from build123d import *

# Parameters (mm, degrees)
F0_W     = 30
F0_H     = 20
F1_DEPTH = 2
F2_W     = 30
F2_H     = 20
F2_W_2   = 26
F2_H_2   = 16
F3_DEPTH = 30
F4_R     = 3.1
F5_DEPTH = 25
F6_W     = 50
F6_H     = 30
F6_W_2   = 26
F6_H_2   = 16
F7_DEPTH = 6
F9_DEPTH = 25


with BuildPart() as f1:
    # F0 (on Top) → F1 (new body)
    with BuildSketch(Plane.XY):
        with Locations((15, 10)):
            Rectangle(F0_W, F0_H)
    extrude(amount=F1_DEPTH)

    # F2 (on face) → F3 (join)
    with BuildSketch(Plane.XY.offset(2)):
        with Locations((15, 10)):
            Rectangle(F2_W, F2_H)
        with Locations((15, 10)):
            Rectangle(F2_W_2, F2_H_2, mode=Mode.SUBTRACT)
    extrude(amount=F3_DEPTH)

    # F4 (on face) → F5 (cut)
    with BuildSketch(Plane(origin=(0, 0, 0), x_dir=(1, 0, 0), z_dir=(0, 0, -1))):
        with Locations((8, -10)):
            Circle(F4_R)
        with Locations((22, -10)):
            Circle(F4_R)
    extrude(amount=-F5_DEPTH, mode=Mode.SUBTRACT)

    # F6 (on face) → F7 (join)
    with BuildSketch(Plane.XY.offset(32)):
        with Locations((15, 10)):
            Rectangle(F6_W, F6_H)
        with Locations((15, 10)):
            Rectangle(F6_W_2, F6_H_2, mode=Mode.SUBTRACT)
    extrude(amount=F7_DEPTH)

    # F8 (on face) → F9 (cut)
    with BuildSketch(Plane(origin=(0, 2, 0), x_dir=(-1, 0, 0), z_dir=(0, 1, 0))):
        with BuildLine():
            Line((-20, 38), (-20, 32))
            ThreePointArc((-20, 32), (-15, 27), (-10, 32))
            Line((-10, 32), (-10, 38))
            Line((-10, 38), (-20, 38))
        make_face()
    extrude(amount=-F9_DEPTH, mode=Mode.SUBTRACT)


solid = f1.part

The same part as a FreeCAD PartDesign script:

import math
import FreeCAD as App
import Part
import Sketcher
from FreeCAD import Vector
Q = App.Units.Quantity

doc = App.newDocument("Part")
body = doc.addObject("PartDesign::Body", "Body")

# Sketch on XY plane
sketch1 = doc.addObject("Sketcher::SketchObject", "Sketch")
body.addObject(sketch1)
sketch1.AttachmentSupport = (doc.XY_Plane, [""])
sketch1.MapMode = "FlatFace"
sketch1.addGeometry([
    Part.LineSegment(Vector(0, 20, 0), Vector(0, 0, 0)),
    Part.LineSegment(Vector(0, 0, 0), Vector(30, 0, 0)),
    Part.LineSegment(Vector(30, 0, 0), Vector(30, 20, 0)),
    Part.LineSegment(Vector(30, 20, 0), Vector(0, 20, 0)),
], False)
sketch1.addConstraint([
    Sketcher.Constraint("Coincident", 0, 2, 1, 1),
    Sketcher.Constraint("Coincident", 1, 2, 2, 1),
    Sketcher.Constraint("Coincident", 2, 2, 3, 1),
    Sketcher.Constraint("Coincident", 3, 2, 0, 1),
    Sketcher.Constraint("Vertical", 0),
    Sketcher.Constraint("Horizontal", 1),
    Sketcher.Constraint("Vertical", 2),
    Sketcher.Constraint("Horizontal", 3),
    Sketcher.Constraint("Coincident", 0, 2, -1, 1),
    Sketcher.Constraint("DistanceX", 1, 1, 1, 2, Q("30 mm")),
    Sketcher.Constraint("DistanceY", 0, 2, 0, 1, Q("20 mm")),
])
pad1 = doc.addObject("PartDesign::Pad", "Pad")
body.addObject(pad1)
pad1.Profile = sketch1
pad1.Length = 2

# Sketch on XY plane
sketch2 = doc.addObject("Sketcher::SketchObject", "Sketch001")
body.addObject(sketch2)
sketch2.AttachmentSupport = (doc.XY_Plane, [""])
sketch2.MapMode = "FlatFace"
sketch2.AttachmentOffset = App.Placement(Vector(0, 0, 2), App.Rotation())
sketch2.addGeometry([
    Part.LineSegment(Vector(0, 20, 0), Vector(0, 0, 0)),  # 0
    Part.LineSegment(Vector(0, 0, 0), Vector(30, 0, 0)),  # 1
    Part.LineSegment(Vector(30, 0, 0), Vector(30, 20, 0)),  # 2
    Part.LineSegment(Vector(30, 20, 0), Vector(0, 20, 0)),  # 3
    Part.LineSegment(Vector(28, 2, 0), Vector(2, 2, 0)),  # 4
    Part.LineSegment(Vector(2, 2, 0), Vector(2, 18, 0)),  # 5
    Part.LineSegment(Vector(2, 18, 0), Vector(28, 18, 0)),  # 6
    Part.LineSegment(Vector(28, 18, 0), Vector(28, 2, 0)),  # 7
], False)
sketch2.addConstraint([
    Sketcher.Constraint("Coincident", 0, 2, 1, 1),
    Sketcher.Constraint("Coincident", 1, 2, 2, 1),
    Sketcher.Constraint("Coincident", 2, 2, 3, 1),
    Sketcher.Constraint("Coincident", 3, 2, 0, 1),
    Sketcher.Constraint("Coincident", 4, 2, 5, 1),
    Sketcher.Constraint("Coincident", 5, 2, 6, 1),
    Sketcher.Constraint("Coincident", 6, 2, 7, 1),
    Sketcher.Constraint("Coincident", 7, 2, 4, 1),
    Sketcher.Constraint("Vertical", 0),
    Sketcher.Constraint("Horizontal", 1),
    Sketcher.Constraint("Vertical", 2),
    Sketcher.Constraint("Horizontal", 3),
    Sketcher.Constraint("Horizontal", 4),
    Sketcher.Constraint("Vertical", 5),
    Sketcher.Constraint("Horizontal", 6),
    Sketcher.Constraint("Vertical", 7),
    Sketcher.Constraint("Coincident", 0, 2, -1, 1),
    Sketcher.Constraint("DistanceX", 1, 1, 1, 2, Q("30 mm")),
    Sketcher.Constraint("DistanceX", 4, 2, 4, 1, Q("26 mm")),
    Sketcher.Constraint("DistanceY", 0, 2, 0, 1, Q("20 mm")),
    Sketcher.Constraint("DistanceY", 5, 1, 5, 2, Q("16 mm")),
    Sketcher.Constraint("DistanceX", -1, 1, 4, 2, Q("2 mm")),
    Sketcher.Constraint("DistanceY", -1, 1, 4, 2, Q("2 mm")),
])
pad2 = doc.addObject("PartDesign::Pad", "Pad001")
body.addObject(pad2)
pad2.Profile = sketch2
pad2.Length = 30

# Sketch on XY plane
sketch3 = doc.addObject("Sketcher::SketchObject", "Sketch002")
body.addObject(sketch3)
sketch3.AttachmentSupport = (doc.XY_Plane, [""])
sketch3.MapMode = "FlatFace"
sketch3.addGeometry([
    Part.Circle(Vector(8, 10, 0), Vector(0, 0, 1), 3.1),
    Part.Circle(Vector(22, 10, 0), Vector(0, 0, 1), 3.1),
], False)
sketch3.addConstraint([
    Sketcher.Constraint("Equal", 0, 1),
    Sketcher.Constraint("Horizontal", 0, 3, 1, 3),
    Sketcher.Constraint("Diameter", 0, Q("6.2 mm")),
    Sketcher.Constraint("DistanceX", -1, 1, 0, 3, Q("8 mm")),
    Sketcher.Constraint("DistanceY", -1, 1, 0, 3, Q("10 mm")),
    Sketcher.Constraint("DistanceX", -1, 1, 1, 3, Q("22 mm")),
])
pocket1 = doc.addObject("PartDesign::Pocket", "Pocket")
body.addObject(pocket1)
pocket1.Profile = sketch3
pocket1.Length = 25
pocket1.Reversed = True

# Sketch on XY plane
sketch4 = doc.addObject("Sketcher::SketchObject", "Sketch003")
body.addObject(sketch4)
sketch4.AttachmentSupport = (doc.XY_Plane, [""])
sketch4.MapMode = "FlatFace"
sketch4.AttachmentOffset = App.Placement(Vector(0, 0, 32), App.Rotation())
sketch4.addGeometry([
    Part.LineSegment(Vector(-10, 25, 0), Vector(-10, -5, 0)),  # 0
    Part.LineSegment(Vector(-10, -5, 0), Vector(40, -5, 0)),  # 1
    Part.LineSegment(Vector(40, -5, 0), Vector(40, 25, 0)),  # 2
    Part.LineSegment(Vector(40, 25, 0), Vector(-10, 25, 0)),  # 3
    Part.LineSegment(Vector(28, 2, 0), Vector(2, 2, 0)),  # 4
    Part.LineSegment(Vector(2, 2, 0), Vector(2, 18, 0)),  # 5
    Part.LineSegment(Vector(2, 18, 0), Vector(28, 18, 0)),  # 6
    Part.LineSegment(Vector(28, 18, 0), Vector(28, 2, 0)),  # 7
], False)
sketch4.addConstraint([
    Sketcher.Constraint("Coincident", 0, 2, 1, 1),
    Sketcher.Constraint("Coincident", 1, 2, 2, 1),
    Sketcher.Constraint("Coincident", 2, 2, 3, 1),
    Sketcher.Constraint("Coincident", 3, 2, 0, 1),
    Sketcher.Constraint("Coincident", 4, 2, 5, 1),
    Sketcher.Constraint("Coincident", 5, 2, 6, 1),
    Sketcher.Constraint("Coincident", 6, 2, 7, 1),
    Sketcher.Constraint("Coincident", 7, 2, 4, 1),
    Sketcher.Constraint("Vertical", 0),
    Sketcher.Constraint("Horizontal", 1),
    Sketcher.Constraint("Vertical", 2),
    Sketcher.Constraint("Horizontal", 3),
    Sketcher.Constraint("Horizontal", 4),
    Sketcher.Constraint("Vertical", 5),
    Sketcher.Constraint("Horizontal", 6),
    Sketcher.Constraint("Vertical", 7),
    Sketcher.Constraint("DistanceX", 1, 1, 1, 2, Q("50 mm")),
    Sketcher.Constraint("DistanceX", 4, 2, 4, 1, Q("26 mm")),
    Sketcher.Constraint("DistanceY", 0, 2, 0, 1, Q("30 mm")),
    Sketcher.Constraint("DistanceY", 5, 1, 5, 2, Q("16 mm")),
    Sketcher.Constraint("DistanceX", 0, 2, -1, 1, Q("10 mm")),
    Sketcher.Constraint("DistanceY", 0, 2, -1, 1, Q("5 mm")),
    Sketcher.Constraint("DistanceX", -1, 1, 4, 2, Q("2 mm")),
    Sketcher.Constraint("DistanceY", -1, 1, 4, 2, Q("2 mm")),
])
pad3 = doc.addObject("PartDesign::Pad", "Pad002")
body.addObject(pad3)
pad3.Profile = sketch4
pad3.Length = 6

# Sketch on XZ plane
sketch5 = doc.addObject("Sketcher::SketchObject", "Sketch004")
body.addObject(sketch5)
sketch5.AttachmentSupport = (doc.XZ_Plane, [""])
sketch5.MapMode = "FlatFace"
sketch5.AttachmentOffset = App.Placement(Vector(0, 0, -2), App.Rotation())
sketch5.addGeometry([
    Part.LineSegment(Vector(20, 38, 0), Vector(20, 32, 0)),
    Part.ArcOfCircle(Part.Circle(Vector(15, 32, 0), Vector(0, 0, 1), 5), math.radians(180), math.radians(360)),
    Part.LineSegment(Vector(10, 32, 0), Vector(10, 38, 0)),
    Part.LineSegment(Vector(10, 38, 0), Vector(20, 38, 0)),
], False)
sketch5.addConstraint([
    Sketcher.Constraint("Tangent", 0, 2, 1, 2),
    Sketcher.Constraint("Tangent", 1, 1, 2, 1),
    Sketcher.Constraint("Coincident", 2, 2, 3, 1),
    Sketcher.Constraint("Coincident", 3, 2, 0, 1),
    Sketcher.Constraint("Vertical", 0),
    Sketcher.Constraint("Vertical", 2),
    Sketcher.Constraint("Horizontal", 3),
    Sketcher.Constraint("Radius", 1, Q("5 mm")),
    Sketcher.Constraint("DistanceY", 0, 2, 0, 1, Q("6 mm")),
    Sketcher.Constraint("DistanceX", -1, 1, 1, 3, Q("15 mm")),
    Sketcher.Constraint("DistanceY", -1, 1, 1, 3, Q("32 mm")),
])
pocket2 = doc.addObject("PartDesign::Pocket", "Pocket001")
body.addObject(pocket2)
pocket2.Profile = sketch5
pocket2.Length = 25
pocket2.Reversed = True

doc.recompute()
